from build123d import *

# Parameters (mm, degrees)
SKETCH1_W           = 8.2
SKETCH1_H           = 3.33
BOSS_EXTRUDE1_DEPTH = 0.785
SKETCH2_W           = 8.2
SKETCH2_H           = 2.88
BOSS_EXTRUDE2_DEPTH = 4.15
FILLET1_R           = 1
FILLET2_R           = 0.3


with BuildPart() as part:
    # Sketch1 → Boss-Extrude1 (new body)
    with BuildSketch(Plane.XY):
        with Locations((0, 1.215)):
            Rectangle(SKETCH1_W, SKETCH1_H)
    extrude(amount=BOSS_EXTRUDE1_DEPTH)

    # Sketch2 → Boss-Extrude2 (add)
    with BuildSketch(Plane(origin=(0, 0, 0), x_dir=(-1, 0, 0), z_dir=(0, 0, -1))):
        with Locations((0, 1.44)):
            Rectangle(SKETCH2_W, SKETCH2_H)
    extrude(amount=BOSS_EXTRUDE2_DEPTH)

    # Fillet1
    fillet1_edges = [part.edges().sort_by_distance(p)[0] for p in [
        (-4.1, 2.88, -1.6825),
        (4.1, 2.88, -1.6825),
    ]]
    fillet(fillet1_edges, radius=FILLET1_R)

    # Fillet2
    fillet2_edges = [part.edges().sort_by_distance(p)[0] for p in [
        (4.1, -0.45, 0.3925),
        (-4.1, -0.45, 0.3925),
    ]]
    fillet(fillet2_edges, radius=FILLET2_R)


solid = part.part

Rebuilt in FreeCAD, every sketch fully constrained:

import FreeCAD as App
import Part
import Sketcher
from FreeCAD import Vector
Q = App.Units.Quantity


def edges_at(feature, points):
    """Names of the edges that pass closest to the given points."""
    edges = feature.Shape.Edges
    near = lambda p: min(range(len(edges)), key=lambda i: edges[i].distToShape(Part.Vertex(*p))[0])
    return sorted({f"Edge{near(p) + 1}" for p in points})


def add_polygon(sketch, points):
    """Adds a closed chain of lines whose ends are joined by coincident constraints."""
    first, n = sketch.GeometryCount, len(points)
    for a, b in zip(points, points[1:] + points[:1]):
        sketch.addGeometry(Part.LineSegment(App.Vector(*a, 0), App.Vector(*b, 0)), False)
    for i in range(n):
        sketch.addConstraint(Sketcher.Constraint("Coincident", first + i, 2, first + (i + 1) % n, 1))

doc = App.newDocument("Part")
body = doc.addObject("PartDesign::Body", "Body")

sketch1 = body.newObject("Sketcher::SketchObject", "Sketch")
sketch1.AttachmentSupport = (doc.getObject("XY_Plane"), [""])
sketch1.MapMode = "FlatFace"
add_polygon(sketch1, [(-4.1, 2.88), (-4.1, -0.45), (4.1, -0.45), (4.1, 2.88)])
sketch1.addConstraint(Sketcher.Constraint("Vertical", 0))
sketch1.addConstraint(Sketcher.Constraint("Horizontal", 1))
sketch1.addConstraint(Sketcher.Constraint("Vertical", 2))
sketch1.addConstraint(Sketcher.Constraint("Horizontal", 3))
sketch1.addConstraint(Sketcher.Constraint("DistanceX", 1, 1, 1, 2, Q("8.2 mm")))
sketch1.addConstraint(Sketcher.Constraint("DistanceY", 0, 2, 0, 1, Q("3.33 mm")))
sketch1.addConstraint(Sketcher.Constraint("DistanceX", 0, 2, -1, 1, Q("4.1 mm")))
sketch1.addConstraint(Sketcher.Constraint("DistanceY", 0, 2, -1, 1, Q("0.45 mm")))
pad1 = body.newObject("PartDesign::Pad", "Pad")
pad1.Profile = sketch1
pad1.Length = 0.785

sketch2 = body.newObject("Sketcher::SketchObject", "Sketch001")
sketch2.AttachmentSupport = (doc.getObject("XY_Plane"), [""])
sketch2.MapMode = "FlatFace"
add_polygon(sketch2, [(4.1, 2.88), (4.1, 0), (-4.1, 0), (-4.1, 2.88)])
sketch2.addConstraint(Sketcher.Constraint("Vertical", 0))
sketch2.addConstraint(Sketcher.Constraint("Horizontal", 1))
sketch2.addConstraint(Sketcher.Constraint("Vertical", 2))
sketch2.addConstraint(Sketcher.Constraint("Horizontal", 3))
sketch2.addConstraint(Sketcher.Constraint("Symmetric", 0, 2, 1, 2, -1, 1))
sketch2.addConstraint(Sketcher.Constraint("DistanceX", 1, 2, 1, 1, Q("8.2 mm")))
sketch2.addConstraint(Sketcher.Constraint("DistanceY", 0, 2, 0, 1, Q("2.88 mm")))
pad2 = body.newObject("PartDesign::Pad", "Pad001")
pad2.Profile = sketch2
pad2.Length = 4.15
pad2.Reversed = True
doc.recompute()

fillet = body.newObject("PartDesign::Fillet", "Fillet")
fillet.Base = (pad2, edges_at(pad2, [(-4.1, 2.88, -1.683), (4.1, 2.88, -1.683)]))
fillet.Radius = 1
doc.recompute()

fillet2 = body.newObject("PartDesign::Fillet", "Fillet001")
fillet2.Base = (fillet, edges_at(fillet, [(4.1, -0.45, 0.393), (-4.1, -0.45, 0.393)]))
fillet2.Radius = 0.3

doc.recompute()
